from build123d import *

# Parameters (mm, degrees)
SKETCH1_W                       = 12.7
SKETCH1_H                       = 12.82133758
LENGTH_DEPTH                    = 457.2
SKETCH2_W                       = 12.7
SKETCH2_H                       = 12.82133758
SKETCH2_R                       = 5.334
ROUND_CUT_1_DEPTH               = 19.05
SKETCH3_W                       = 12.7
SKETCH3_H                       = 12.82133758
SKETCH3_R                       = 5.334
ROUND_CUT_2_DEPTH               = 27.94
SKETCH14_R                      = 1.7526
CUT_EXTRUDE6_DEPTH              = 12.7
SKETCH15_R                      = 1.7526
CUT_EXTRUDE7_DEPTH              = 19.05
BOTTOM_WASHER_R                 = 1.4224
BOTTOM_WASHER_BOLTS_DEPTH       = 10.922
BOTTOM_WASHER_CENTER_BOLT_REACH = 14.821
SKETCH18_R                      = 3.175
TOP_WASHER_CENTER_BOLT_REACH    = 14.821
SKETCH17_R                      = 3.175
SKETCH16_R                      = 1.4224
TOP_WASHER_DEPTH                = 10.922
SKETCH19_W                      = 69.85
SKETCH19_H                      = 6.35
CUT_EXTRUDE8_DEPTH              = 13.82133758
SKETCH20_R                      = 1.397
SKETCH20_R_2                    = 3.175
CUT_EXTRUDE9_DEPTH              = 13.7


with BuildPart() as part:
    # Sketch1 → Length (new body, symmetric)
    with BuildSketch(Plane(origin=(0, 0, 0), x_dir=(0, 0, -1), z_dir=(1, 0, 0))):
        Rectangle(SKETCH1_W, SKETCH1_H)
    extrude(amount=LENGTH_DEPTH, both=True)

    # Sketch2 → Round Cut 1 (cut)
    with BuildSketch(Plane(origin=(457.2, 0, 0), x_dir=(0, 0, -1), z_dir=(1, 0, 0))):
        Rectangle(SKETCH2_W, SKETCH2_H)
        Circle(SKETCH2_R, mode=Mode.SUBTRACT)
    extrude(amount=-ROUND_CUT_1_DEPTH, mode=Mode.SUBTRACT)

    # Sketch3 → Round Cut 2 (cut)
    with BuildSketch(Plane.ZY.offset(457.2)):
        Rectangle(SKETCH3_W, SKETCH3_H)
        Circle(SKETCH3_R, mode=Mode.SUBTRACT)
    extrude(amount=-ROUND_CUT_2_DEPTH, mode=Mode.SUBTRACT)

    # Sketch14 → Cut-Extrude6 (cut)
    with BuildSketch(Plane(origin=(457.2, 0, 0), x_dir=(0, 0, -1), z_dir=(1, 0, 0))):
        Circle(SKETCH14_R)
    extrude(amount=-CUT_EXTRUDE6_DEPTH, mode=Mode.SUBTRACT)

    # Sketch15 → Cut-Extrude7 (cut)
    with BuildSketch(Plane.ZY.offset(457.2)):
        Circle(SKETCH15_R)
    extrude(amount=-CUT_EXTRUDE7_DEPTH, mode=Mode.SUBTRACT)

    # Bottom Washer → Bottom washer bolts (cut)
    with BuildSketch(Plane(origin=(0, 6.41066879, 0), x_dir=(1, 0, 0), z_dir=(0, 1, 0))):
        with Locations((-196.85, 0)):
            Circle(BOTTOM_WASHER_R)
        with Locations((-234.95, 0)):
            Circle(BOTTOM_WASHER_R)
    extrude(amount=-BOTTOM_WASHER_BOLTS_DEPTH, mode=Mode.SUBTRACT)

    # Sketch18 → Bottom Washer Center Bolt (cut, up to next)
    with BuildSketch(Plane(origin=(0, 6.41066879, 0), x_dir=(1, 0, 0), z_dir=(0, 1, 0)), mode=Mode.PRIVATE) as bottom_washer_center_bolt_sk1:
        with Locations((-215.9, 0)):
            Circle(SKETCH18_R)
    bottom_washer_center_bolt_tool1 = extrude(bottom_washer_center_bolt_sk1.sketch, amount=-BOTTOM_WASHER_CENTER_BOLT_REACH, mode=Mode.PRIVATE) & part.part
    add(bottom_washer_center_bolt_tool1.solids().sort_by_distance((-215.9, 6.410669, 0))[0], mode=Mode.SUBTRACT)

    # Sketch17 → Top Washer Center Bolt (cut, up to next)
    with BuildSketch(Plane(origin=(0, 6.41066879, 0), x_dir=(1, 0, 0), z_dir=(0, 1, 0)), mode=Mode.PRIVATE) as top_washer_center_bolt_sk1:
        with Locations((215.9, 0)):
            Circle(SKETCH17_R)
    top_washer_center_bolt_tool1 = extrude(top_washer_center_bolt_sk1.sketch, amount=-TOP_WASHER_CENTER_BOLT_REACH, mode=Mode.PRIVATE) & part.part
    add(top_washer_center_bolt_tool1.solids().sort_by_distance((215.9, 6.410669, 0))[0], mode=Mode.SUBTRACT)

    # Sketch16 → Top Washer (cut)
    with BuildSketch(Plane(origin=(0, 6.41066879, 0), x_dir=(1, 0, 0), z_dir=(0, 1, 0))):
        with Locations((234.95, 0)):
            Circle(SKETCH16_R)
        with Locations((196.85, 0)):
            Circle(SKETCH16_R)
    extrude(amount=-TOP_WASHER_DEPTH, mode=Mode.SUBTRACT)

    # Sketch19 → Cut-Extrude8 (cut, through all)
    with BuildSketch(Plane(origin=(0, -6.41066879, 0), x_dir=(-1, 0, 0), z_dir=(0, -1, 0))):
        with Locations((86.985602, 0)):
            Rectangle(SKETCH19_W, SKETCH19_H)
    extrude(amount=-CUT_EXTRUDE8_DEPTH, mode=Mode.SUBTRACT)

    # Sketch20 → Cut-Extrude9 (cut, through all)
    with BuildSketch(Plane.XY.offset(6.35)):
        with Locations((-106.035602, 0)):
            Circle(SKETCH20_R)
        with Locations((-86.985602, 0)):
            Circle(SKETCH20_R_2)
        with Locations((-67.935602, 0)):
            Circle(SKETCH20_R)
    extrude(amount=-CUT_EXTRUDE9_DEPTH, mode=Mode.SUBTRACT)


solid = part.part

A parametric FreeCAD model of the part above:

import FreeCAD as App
import Part
import Sketcher
Q = App.Units.Quantity

doc = App.newDocument("Part")
params = doc.addObject("Spreadsheet::Sheet", "Params")
for row, (alias, value) in enumerate([
    ("sketch1_height", "0.5 in"),
    ("pad1_length", "36 in"),
    ("sketch2_diameter", "0.42 in"),
    ("sketch2_height", "0.5 in"),
    ("pocket1_length", "0.75 in"),
    ("sketch3_diameter", "0.42 in"),
    ("sketch3_height", "0.5 in"),
    ("pocket2_length", "1.1 in"),
    ("sketch4_diameter", "0.138 in"),
    ("pocket3_length", "0.5 in"),
    ("sketch5_diameter", "0.138 in"),
    ("pocket4_length", "0.75 in"),
    ("sketch6_diameter", "0.112 in"),
    ("pocket5_length", "0.43 in"),
    ("sketch7_diameter", "0.25 in"),
    ("sketch8_diameter", "0.25 in"),
    ("sketch9_diameter", "0.112 in"),
    ("pocket8_length", "0.43 in"),
    ("sketch10_width", "2.75 in"),
    ("sketch10_height", "0.25 in"),
    ("sketch11_diameter", "0.11 in"),
    ("sketch11_diameter2", "0.25 in"),
], start=1):
    params.set(f"A{row}", alias)
    params.set(f"B{row}", "=" + value)
    params.setAlias(f"B{row}", alias)

body = doc.addObject("PartDesign::Body", "Body")

# Sketch on YZ plane
sketch1 = body.newObject("Sketcher::SketchObject", "Sketch")
sketch1.AttachmentSupport = (doc.getObject("YZ_Plane"), [""])
sketch1.MapMode = "FlatFace"
sketch1.addGeometry([
    Part.LineSegment(App.Vector(6, 6, 0), App.Vector(-6, 6, 0)),
    Part.LineSegment(App.Vector(-6, 6, 0), App.Vector(-6, -6, 0)),
    Part.LineSegment(App.Vector(-6, -6, 0), App.Vector(6, -6, 0)),
    Part.LineSegment(App.Vector(6, -6, 0), App.Vector(6, 6, 0)),
], False)
sketch1.addConstraint([
    Sketcher.Constraint("Coincident", 0, 2, 1, 1),
    Sketcher.Constraint("Coincident", 1, 2, 2, 1),
    Sketcher.Constraint("Coincident", 2, 2, 3, 1),
    Sketcher.Constraint("Coincident", 3, 2, 0, 1),
    Sketcher.Constraint("Horizontal", 0),
    Sketcher.Constraint("Vertical", 1),
    Sketcher.Constraint("Horizontal", 2),
    Sketcher.Constraint("Vertical", 3),
    Sketcher.Constraint("Symmetric", 0, 2, 2, 2, -1, 1),
    Sketcher.Constraint("DistanceY", 1, 2, 1, 1, Q("0.5 in")),
    Sketcher.Constraint("DistanceX", 0, 2, 0, 1, Q("12.821338 mm")),
])
sketch1.setExpression("Constraints[9]", "Params.sketch1_height")
pad1 = body.newObject("PartDesign::Pad", "Pad")
pad1.Profile = sketch1
pad1.setExpression("Length", "Params.pad1_length")
pad1.Midplane = True

# Sketch on YZ plane
sketch2 = body.newObject("Sketcher::SketchObject", "Sketch001")
sketch2.AttachmentSupport = (doc.getObject("YZ_Plane"), [""])
sketch2.MapMode = "FlatFace"
sketch2.AttachmentOffset = App.Placement(App.Vector(0, 0, 18 * 25.4), App.Rotation())
sketch2.addGeometry([
    Part.LineSegment(App.Vector(6, 6, 0), App.Vector(-6, 6, 0)),  # 0
    Part.LineSegment(App.Vector(-6, 6, 0), App.Vector(-6, -6, 0)),  # 1
    Part.LineSegment(App.Vector(-6, -6, 0), App.Vector(6, -6, 0)),  # 2
    Part.LineSegment(App.Vector(6, -6, 0), App.Vector(6, 6, 0)),  # 3
    Part.Circle(App.Vector(0, 0, 0), App.Vector(0, 0, 1), 5),  # 4
], False)
sketch2.addConstraint([
    Sketcher.Constraint("Coincident", 0, 2, 1, 1),
    Sketcher.Constraint("Coincident", 1, 2, 2, 1),
    Sketcher.Constraint("Coincident", 2, 2, 3, 1),
    Sketcher.Constraint("Coincident", 3, 2, 0, 1),
    Sketcher.Constraint("Horizontal", 0),
    Sketcher.Constraint("Vertical", 1),
    Sketcher.Constraint("Horizontal", 2),
    Sketcher.Constraint("Vertical", 3),
    Sketcher.Constraint("Coincident", 4, 3, -1, 1),
    Sketcher.Constraint("Symmetric", 0, 2, 2, 2, -1, 1),
    Sketcher.Constraint("Diameter", 4, Q("0.42 in")),
    Sketcher.Constraint("DistanceY", 1, 2, 1, 1, Q("0.5 in")),
    Sketcher.Constraint("DistanceX", 0, 2, 0, 1, Q("12.821338 mm")),
])
sketch2.setExpression("Constraints[10]", "Params.sketch2_diameter")
sketch2.setExpression("Constraints[11]", "Params.sketch2_height")
pocket1 = body.newObject("PartDesign::Pocket", "Pocket")
pocket1.Profile = sketch2
pocket1.setExpression("Length", "Params.pocket1_length")

# Sketch on YZ plane
sketch3 = body.newObject("Sketcher::SketchObject", "Sketch002")
sketch3.AttachmentSupport = (doc.getObject("YZ_Plane"), [""])
sketch3.MapMode = "FlatFace"
sketch3.AttachmentOffset = App.Placement(App.Vector(0, 0, -18 * 25.4), App.Rotation())
sketch3.addGeometry([
    Part.LineSegment(App.Vector(6, -6, 0), App.Vector(-6, -6, 0)),  # 0
    Part.LineSegment(App.Vector(-6, -6, 0), App.Vector(-6, 6, 0)),  # 1
    Part.LineSegment(App.Vector(-6, 6, 0), App.Vector(6, 6, 0)),  # 2
    Part.LineSegment(App.Vector(6, 6, 0), App.Vector(6, -6, 0)),  # 3
    Part.Circle(App.Vector(0, 0, 0), App.Vector(0, 0, 1), 5),  # 4
], False)
sketch3.addConstraint([
    Sketcher.Constraint("Coincident", 0, 2, 1, 1),
    Sketcher.Constraint("Coincident", 1, 2, 2, 1),
    Sketcher.Constraint("Coincident", 2, 2, 3, 1),
    Sketcher.Constraint("Coincident", 3, 2, 0, 1),
    Sketcher.Constraint("Horizontal", 0),
    Sketcher.Constraint("Vertical", 1),
    Sketcher.Constraint("Horizontal", 2),
    Sketcher.Constraint("Vertical", 3),
    Sketcher.Constraint("Coincident", 4, 3, -1, 1),
    Sketcher.Constraint("Symmetric", 0, 2, 2, 2, -1, 1),
    Sketcher.Constraint("Diameter", 4, Q("0.42 in")),
    Sketcher.Constraint("DistanceY", 1, 1, 1, 2, Q("0.5 in")),
    Sketcher.Constraint("DistanceX", 0, 2, 0, 1, Q("12.821338 mm")),
])
sketch3.setExpression("Constraints[10]", "Params.sketch3_diameter")
sketch3.setExpression("Constraints[11]", "Params.sketch3_height")
pocket2 = body.newObject("PartDesign::Pocket", "Pocket001")
pocket2.Profile = sketch3
pocket2.setExpression("Length", "Params.pocket2_length")
pocket2.Reversed = True

# Sketch on YZ plane
sketch4 = body.newObject("Sketcher::SketchObject", "Sketch003")
sketch4.AttachmentSupport = (doc.getObject("YZ_Plane"), [""])
sketch4.MapMode = "FlatFace"
sketch4.AttachmentOffset = App.Placement(App.Vector(0, 0, 18 * 25.4), App.Rotation())
sketch4.addGeometry(Part.Circle(App.Vector(0, 0, 0), App.Vector(0, 0, 1), 1.8), False)
sketch4.addConstraint([
    Sketcher.Constraint("Coincident", 0, 3, -1, 1),
    Sketcher.Constraint("Diameter", 0, Q("0.138 in")),
])
sketch4.setExpression("Constraints[1]", "Params.sketch4_diameter")
pocket3 = body.newObject("PartDesign::Pocket", "Pocket002")
pocket3.Profile = sketch4
pocket3.setExpression("Length", "Params.pocket3_length")

# Sketch on YZ plane
sketch5 = body.newObject("Sketcher::SketchObject", "Sketch004")
sketch5.AttachmentSupport = (doc.getObject("YZ_Plane"), [""])
sketch5.MapMode = "FlatFace"
sketch5.AttachmentOffset = App.Placement(App.Vector(0, 0, -18 * 25.4), App.Rotation())
sketch5.addGeometry(Part.Circle(App.Vector(0, 0, 0), App.Vector(0, 0, 1), 1.8), False)
sketch5.addConstraint([
    Sketcher.Constraint("Coincident", 0, 3, -1, 1),
    Sketcher.Constraint("Diameter", 0, Q("0.138 in")),
])
sketch5.setExpression("Constraints[1]", "Params.sketch5_diameter")
pocket4 = body.newObject("PartDesign::Pocket", "Pocket003")
pocket4.Profile = sketch5
pocket4.setExpression("Length", "Params.pocket4_length")
pocket4.Reversed = True

# Sketch on XZ plane
sketch6 = body.newObject("Sketcher::SketchObject", "Sketch005")
sketch6.AttachmentSupport = (doc.getObject("XZ_Plane"), [""])
sketch6.MapMode = "FlatFace"
sketch6.AttachmentOffset = App.Placement(App.Vector(0, 0, -6.410669), App.Rotation())
sketch6.addGeometry([
    Part.Circle(App.Vector(-196.8, 0, 0), App.Vector(0, 0, 1), 1.4),
    Part.Circle(App.Vector(-234.9, 0, 0), App.Vector(0, 0, 1), 1.4),
], False)
sketch6.addConstraint([
    Sketcher.Constraint("Equal", 0, 1),
    Sketcher.Constraint("PointOnObject", 0, 3, -1),
    Sketcher.Constraint("PointOnObject", 1, 3, -1),
    Sketcher.Constraint("Diameter", 0, Q("0.112 in")),
    Sketcher.Constraint("DistanceX", 1, 3, 0, 3, Q("1.5 in")),
    Sketcher.Constraint("DistanceX", 0, 3, -1, 1, Q("7.75 in")),
])
sketch6.setExpression("Constraints[3]", "Params.sketch6_diameter")
pocket5 = body.newObject("PartDesign::Pocket", "Pocket004")
pocket5.Profile = sketch6
pocket5.setExpression("Length", "Params.pocket5_length")
pocket5.Reversed = True

# Sketch on XZ plane
sketch7 = body.newObject("Sketcher::SketchObject", "Sketch006")
sketch7.AttachmentSupport = (doc.getObject("XZ_Plane"), [""])
sketch7.MapMode = "FlatFace"
sketch7.AttachmentOffset = App.Placement(App.Vector(0, 0, -6.410669), App.Rotation())
sketch7.addGeometry(Part.Circle(App.Vector(-215.9, 0, 0), App.Vector(0, 0, 1), 3.2), False)
sketch7.addConstraint([
    Sketcher.Constraint("PointOnObject", 0, 3, -1),
    Sketcher.Constraint("Diameter", 0, Q("0.25 in")),
    Sketcher.Constraint("DistanceX", 0, 3, -1, 1, Q("8.5 in")),
])
sketch7.setExpression("Constraints[1]", "Params.sketch7_diameter")
pocket6 = body.newObject("PartDesign::Pocket", "Pocket005")
pocket6.Profile = sketch7
pocket6.Type = "UpToFirst"
pocket6.Reversed = True

# Sketch on XZ plane
sketch8 = body.newObject("Sketcher::SketchObject", "Sketch007")
sketch8.AttachmentSupport = (doc.getObject("XZ_Plane"), [""])
sketch8.MapMode = "FlatFace"
sketch8.AttachmentOffset = App.Placement(App.Vector(0, 0, -6.410669), App.Rotation())
sketch8.addGeometry(Part.Circle(App.Vector(215.9, 0, 0), App.Vector(0, 0, 1), 3.2), False)
sketch8.addConstraint([
    Sketcher.Constraint("PointOnObject", 0, 3, -1),
    Sketcher.Constraint("Diameter", 0, Q("0.25 in")),
    Sketcher.Constraint("DistanceX", -1, 1, 0, 3, Q("8.5 in")),
])
sketch8.setExpression("Constraints[1]", "Params.sketch8_diameter")
pocket7 = body.newObject("PartDesign::Pocket", "Pocket006")
pocket7.Profile = sketch8
pocket7.Type = "UpToFirst"
pocket7.Reversed = True

# Sketch on XZ plane
sketch9 = body.newObject("Sketcher::SketchObject", "Sketch008")
sketch9.AttachmentSupport = (doc.getObject("XZ_Plane"), [""])
sketch9.MapMode = "FlatFace"
sketch9.AttachmentOffset = App.Placement(App.Vector(0, 0, -6.410669), App.Rotation())
sketch9.addGeometry([
    Part.Circle(App.Vector(234.9, 0, 0), App.Vector(0, 0, 1), 1.4),
    Part.Circle(App.Vector(196.8, 0, 0), App.Vector(0, 0, 1), 1.4),
], False)
sketch9.addConstraint([
    Sketcher.Constraint("Equal", 0, 1),
    Sketcher.Constraint("PointOnObject", 0, 3, -1),
    Sketcher.Constraint("PointOnObject", 1, 3, -1),
    Sketcher.Constraint("Diameter", 0, Q("0.112 in")),
    Sketcher.Constraint("DistanceX", 1, 3, 0, 3, Q("1.5 in")),
    Sketcher.Constraint("DistanceX", -1, 1, 0, 3, Q("9.25 in")),
])
sketch9.setExpression("Constraints[3]", "Params.sketch9_diameter")
pocket8 = body.newObject("PartDesign::Pocket", "Pocket007")
pocket8.Profile = sketch9
pocket8.setExpression("Length", "Params.pocket8_length")
pocket8.Reversed = True

# Sketch on XZ plane
sketch10 = body.newObject("Sketcher::SketchObject", "Sketch009")
sketch10.AttachmentSupport = (doc.getObject("XZ_Plane"), [""])
sketch10.MapMode = "FlatFace"
sketch10.AttachmentOffset = App.Placement(App.Vector(0, 0, 6.410669), App.Rotation())
sketch10.addGeometry([
    Part.LineSegment(App.Vector(-52, -3, 0), App.Vector(-52, 3, 0)),
    Part.LineSegment(App.Vector(-52, 3, 0), App.Vector(-122, 3, 0)),
    Part.LineSegment(App.Vector(-122, 3, 0), App.Vector(-122, -3, 0)),
    Part.LineSegment(App.Vector(-122, -3, 0), App.Vector(-52, -3, 0)),
], False)
sketch10.addConstraint([
    Sketcher.Constraint("Coincident", 0, 2, 1, 1),
    Sketcher.Constraint("Coincident", 1, 2, 2, 1),
    Sketcher.Constraint("Coincident", 2, 2, 3, 1),
    Sketcher.Constraint("Coincident", 3, 2, 0, 1),
    Sketcher.Constraint("Vertical", 0),
    Sketcher.Constraint("Horizontal", 1),
    Sketcher.Constraint("Vertical", 2),
    Sketcher.Constraint("Horizontal", 3),
    Sketcher.Constraint("DistanceX", 1, 2, 1, 1, Q("2.75 in")),
    Sketcher.Constraint("DistanceY", 0, 1, 0, 2, Q("0.25 in")),
    Sketcher.Constraint("DistanceY", -1, 1, 0, 2, Q("0.125 in")),
    Sketcher.Constraint("DistanceX", 1, 2, -1, 1, Q("121.910602 mm")),
])
sketch10.setExpression("Constraints[8]", "Params.sketch10_width")
sketch10.setExpression("Constraints[9]", "Params.sketch10_height")
pocket9 = body.newObject("PartDesign::Pocket", "Pocket008")
pocket9.Profile = sketch10
pocket9.Type = "ThroughAll"

# Sketch on XY plane
sketch11 = body.newObject("Sketcher::SketchObject", "Sketch010")
sketch11.AttachmentSupport = (doc.getObject("XY_Plane"), [""])
sketch11.MapMode = "FlatFace"
sketch11.AttachmentOffset = App.Placement(App.Vector(0, 0, 0.25 * 25.4), App.Rotation())
sketch11.addGeometry([
    Part.Circle(App.Vector(-106, 0, 0), App.Vector(0, 0, 1), 1.4),
    Part.Circle(App.Vector(-87, 0, 0), App.Vector(0, 0, 1), 3.2),
    Part.Circle(App.Vector(-67.9, 0, 0), App.Vector(0, 0, 1), 1.4),
], False)
sketch11.addConstraint([
    Sketcher.Constraint("Equal", 0, 2),
    Sketcher.Constraint("PointOnObject", 0, 3, -1),
    Sketcher.Constraint("PointOnObject", 1, 3, -1),
    Sketcher.Constraint("PointOnObject", 2, 3, -1),
    Sketcher.Constraint("Diameter", 0, Q("0.11 in")),
    Sketcher.Constraint("Diameter", 1, Q("0.25 in")),
    Sketcher.Constraint("DistanceX", 0, 3, 2, 3, Q("1.5 in")),
    Sketcher.Constraint("DistanceX", 0, 3, 1, 3, Q("0.75 in")),
    Sketcher.Constraint("DistanceX", 0, 3, -1, 1, Q("106.035602 mm")),
])
sketch11.setExpression("Constraints[4]", "Params.sketch11_diameter")
sketch11.setExpression("Constraints[5]", "Params.sketch11_diameter2")
pocket10 = body.newObject("PartDesign::Pocket", "Pocket009")
pocket10.Profile = sketch11
pocket10.Type = "ThroughAll"

doc.recompute()
